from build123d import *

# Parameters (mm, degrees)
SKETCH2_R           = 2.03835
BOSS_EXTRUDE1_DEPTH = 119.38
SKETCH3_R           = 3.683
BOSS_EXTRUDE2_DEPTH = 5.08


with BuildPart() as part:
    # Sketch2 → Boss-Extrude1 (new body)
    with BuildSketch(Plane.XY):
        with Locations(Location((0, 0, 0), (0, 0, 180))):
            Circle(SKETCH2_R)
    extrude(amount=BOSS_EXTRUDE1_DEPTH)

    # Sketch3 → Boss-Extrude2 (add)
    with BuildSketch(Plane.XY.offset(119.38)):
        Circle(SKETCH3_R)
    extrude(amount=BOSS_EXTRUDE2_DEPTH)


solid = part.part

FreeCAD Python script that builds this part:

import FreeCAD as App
import Part
import Sketcher
from FreeCAD import Vector
Q = App.Units.Quantity

doc = App.newDocument("Part")
body = doc.addObject("PartDesign::Body", "Body")

# Sketch on XY plane
sketch1 = body.newObject("Sketcher::SketchObject", "Sketch")
sketch1.AttachmentSupport = (doc.getObject("XY_Plane"), [""])
sketch1.MapMode = "FlatFace"
sketch1.addGeometry(Part.Circle(Vector(0, 0, 0), Vector(0, 0, 1), 2.03835), False)
sketch1.addConstraint([
    Sketcher.Constraint("Coincident", 0, 3, -1, 1),
    Sketcher.Constraint("Diameter", 0, Q("0.1605 in")),
])
pad1 = body.newObject("PartDesign::Pad", "Pad")
pad1.Profile = sketch1
pad1.Length = Q("4.7 in")

# Sketch on XY plane
sketch2 = body.newObject("Sketcher::SketchObject", "Sketch001")
sketch2.AttachmentSupport = (doc.getObject("XY_Plane"), [""])
sketch2.MapMode = "FlatFace"
sketch2.AttachmentOffset = App.Placement(Vector(0, 0, 4.7 * 25.4), App.Rotation())
sketch2.addGeometry(Part.Circle(Vector(0, 0, 0), Vector(0, 0, 1), 3.683), False)
sketch2.addConstraint([
    Sketcher.Constraint("Coincident", 0, 3, -1, 1),
    Sketcher.Constraint("Diameter", 0, Q("0.29 in")),
])
pad2 = body.newObject("PartDesign::Pad", "Pad001")
pad2.Profile = sketch2
pad2.Length = Q("0.2 in")

doc.recompute()
